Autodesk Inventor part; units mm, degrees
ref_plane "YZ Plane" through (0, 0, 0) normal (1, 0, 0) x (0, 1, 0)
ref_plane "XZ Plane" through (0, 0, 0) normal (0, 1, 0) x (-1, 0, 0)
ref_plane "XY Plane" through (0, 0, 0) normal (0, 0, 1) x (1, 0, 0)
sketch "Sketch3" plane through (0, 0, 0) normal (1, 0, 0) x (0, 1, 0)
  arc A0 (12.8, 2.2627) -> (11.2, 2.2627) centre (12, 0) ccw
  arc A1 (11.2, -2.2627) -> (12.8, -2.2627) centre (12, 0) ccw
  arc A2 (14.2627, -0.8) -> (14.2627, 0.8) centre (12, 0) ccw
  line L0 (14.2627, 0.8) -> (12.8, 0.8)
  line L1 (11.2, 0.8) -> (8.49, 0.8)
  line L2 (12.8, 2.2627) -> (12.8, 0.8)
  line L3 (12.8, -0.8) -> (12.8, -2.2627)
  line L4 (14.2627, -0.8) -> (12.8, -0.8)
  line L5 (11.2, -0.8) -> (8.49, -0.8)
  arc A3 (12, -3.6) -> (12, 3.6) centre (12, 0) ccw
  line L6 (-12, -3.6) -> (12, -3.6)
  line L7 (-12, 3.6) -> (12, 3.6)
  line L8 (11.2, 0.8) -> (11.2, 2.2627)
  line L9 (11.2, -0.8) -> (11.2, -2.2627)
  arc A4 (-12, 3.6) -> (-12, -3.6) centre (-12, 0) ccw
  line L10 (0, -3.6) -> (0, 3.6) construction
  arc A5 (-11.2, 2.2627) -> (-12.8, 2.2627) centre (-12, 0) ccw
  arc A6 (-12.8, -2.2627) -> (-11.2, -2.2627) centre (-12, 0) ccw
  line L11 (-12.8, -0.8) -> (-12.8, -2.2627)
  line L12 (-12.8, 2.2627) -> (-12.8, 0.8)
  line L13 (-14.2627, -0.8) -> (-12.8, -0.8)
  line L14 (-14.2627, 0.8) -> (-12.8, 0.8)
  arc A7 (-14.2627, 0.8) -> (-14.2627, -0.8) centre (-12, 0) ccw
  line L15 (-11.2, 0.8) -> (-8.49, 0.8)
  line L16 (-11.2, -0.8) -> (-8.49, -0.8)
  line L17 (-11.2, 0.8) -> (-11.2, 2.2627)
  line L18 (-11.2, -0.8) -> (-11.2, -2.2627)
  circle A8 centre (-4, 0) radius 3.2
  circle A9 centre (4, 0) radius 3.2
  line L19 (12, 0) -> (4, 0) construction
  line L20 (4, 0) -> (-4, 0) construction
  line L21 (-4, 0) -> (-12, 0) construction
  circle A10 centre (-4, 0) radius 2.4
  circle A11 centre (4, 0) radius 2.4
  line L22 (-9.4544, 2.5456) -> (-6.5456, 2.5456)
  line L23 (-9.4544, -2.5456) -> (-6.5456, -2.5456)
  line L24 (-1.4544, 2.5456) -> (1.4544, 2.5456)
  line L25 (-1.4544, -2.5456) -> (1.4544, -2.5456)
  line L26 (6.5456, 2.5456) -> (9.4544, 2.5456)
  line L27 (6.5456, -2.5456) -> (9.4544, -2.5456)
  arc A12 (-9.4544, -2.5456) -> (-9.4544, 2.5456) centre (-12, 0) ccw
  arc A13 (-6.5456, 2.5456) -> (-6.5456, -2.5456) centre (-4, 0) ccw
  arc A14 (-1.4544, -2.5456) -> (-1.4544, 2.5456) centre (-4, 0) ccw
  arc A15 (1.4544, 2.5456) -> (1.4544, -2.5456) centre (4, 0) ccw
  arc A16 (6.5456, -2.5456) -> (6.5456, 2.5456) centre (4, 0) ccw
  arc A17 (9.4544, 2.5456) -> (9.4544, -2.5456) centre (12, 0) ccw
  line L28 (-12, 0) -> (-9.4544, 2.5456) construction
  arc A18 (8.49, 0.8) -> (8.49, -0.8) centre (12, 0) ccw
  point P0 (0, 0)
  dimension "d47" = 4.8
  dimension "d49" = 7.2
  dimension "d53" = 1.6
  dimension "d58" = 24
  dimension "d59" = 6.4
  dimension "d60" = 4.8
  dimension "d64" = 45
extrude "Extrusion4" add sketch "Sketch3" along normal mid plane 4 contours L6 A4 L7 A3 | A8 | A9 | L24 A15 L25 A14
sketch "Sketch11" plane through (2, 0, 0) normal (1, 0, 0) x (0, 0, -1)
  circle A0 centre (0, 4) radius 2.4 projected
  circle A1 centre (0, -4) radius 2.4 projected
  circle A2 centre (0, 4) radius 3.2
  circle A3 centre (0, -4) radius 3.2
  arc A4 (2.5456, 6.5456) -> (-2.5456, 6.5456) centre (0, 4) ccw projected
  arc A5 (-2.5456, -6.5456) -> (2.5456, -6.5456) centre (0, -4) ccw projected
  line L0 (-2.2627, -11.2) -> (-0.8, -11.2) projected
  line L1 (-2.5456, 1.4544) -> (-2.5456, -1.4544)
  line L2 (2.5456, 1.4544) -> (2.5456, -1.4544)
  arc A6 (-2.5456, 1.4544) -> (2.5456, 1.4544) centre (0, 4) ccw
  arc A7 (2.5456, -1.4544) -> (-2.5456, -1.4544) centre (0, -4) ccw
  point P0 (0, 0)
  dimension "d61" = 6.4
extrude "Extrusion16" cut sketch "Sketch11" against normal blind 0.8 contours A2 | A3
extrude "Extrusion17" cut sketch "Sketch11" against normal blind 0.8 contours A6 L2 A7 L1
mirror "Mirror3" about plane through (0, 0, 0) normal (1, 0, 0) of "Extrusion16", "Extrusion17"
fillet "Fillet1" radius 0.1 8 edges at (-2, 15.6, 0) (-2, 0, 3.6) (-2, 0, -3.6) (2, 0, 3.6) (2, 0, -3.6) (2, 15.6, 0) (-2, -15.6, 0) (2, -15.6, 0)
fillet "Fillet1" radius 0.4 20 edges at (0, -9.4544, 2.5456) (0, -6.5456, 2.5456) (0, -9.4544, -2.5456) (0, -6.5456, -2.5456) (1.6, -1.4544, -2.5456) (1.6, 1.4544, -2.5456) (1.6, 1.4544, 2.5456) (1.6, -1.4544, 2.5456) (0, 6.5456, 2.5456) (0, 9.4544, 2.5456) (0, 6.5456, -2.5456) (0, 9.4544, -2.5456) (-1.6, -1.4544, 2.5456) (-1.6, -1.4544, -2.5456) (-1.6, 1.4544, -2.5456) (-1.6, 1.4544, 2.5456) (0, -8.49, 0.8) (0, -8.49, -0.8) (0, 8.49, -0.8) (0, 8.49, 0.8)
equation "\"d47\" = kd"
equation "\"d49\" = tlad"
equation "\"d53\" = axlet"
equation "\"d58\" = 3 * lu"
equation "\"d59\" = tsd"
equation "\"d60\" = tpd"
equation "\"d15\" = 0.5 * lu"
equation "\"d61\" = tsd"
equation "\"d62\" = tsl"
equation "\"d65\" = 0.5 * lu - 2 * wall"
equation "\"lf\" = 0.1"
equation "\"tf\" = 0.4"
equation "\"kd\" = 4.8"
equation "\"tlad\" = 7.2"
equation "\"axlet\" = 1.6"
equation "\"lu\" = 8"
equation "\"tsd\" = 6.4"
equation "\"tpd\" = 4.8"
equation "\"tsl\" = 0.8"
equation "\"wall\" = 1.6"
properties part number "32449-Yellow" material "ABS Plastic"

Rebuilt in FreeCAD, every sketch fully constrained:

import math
import FreeCAD as App
import Part
import Sketcher


def edges_at(feature, points):
    """Names of the edges that pass closest to the given points."""
    edges = feature.Shape.Edges
    near = lambda p: min(range(len(edges)), key=lambda i: edges[i].distToShape(Part.Vertex(*p))[0])
    return sorted({f"Edge{near(p) + 1}" for p in points})

doc = App.newDocument("Part")
params = doc.addObject("Spreadsheet::Sheet", "Params")
for row, (alias, value) in enumerate([
    ("sketch1_diameter", "4.8 mm"),
    ("sketch1_radius", "3.6 mm"),
    ("sketch1_width", "24 mm"),
    ("pad1_length", "4 mm"),
    ("sketch2_diameter", "6.4 mm"),
    ("sketch2_diameter2", "4.8 mm"),
    ("pocket1_length", "0.8 mm"),
    ("sketch3_radius", "3.6 mm"),
    ("pocket2_length", "0.8 mm"),
    ("fillet_radius", "0.1 mm"),
    ("fillet2_radius", "0.4 mm"),
], start=1):
    params.set(f"A{row}", alias)
    params.set(f"B{row}", "=" + value)
    params.setAlias(f"B{row}", alias)

body = doc.addObject("PartDesign::Body", "Body")

sketch1 = body.newObject("Sketcher::SketchObject", "Sketch")
sketch1.AttachmentSupport = (doc.getObject("YZ_Plane"), [""])
sketch1.MapMode = "FlatFace"
sketch1.addGeometry([
    Part.LineSegment(App.Vector(-12, -3.6, 0), App.Vector(12, -3.6, 0)),
    Part.ArcOfCircle(Part.Circle(App.Vector(12, 0, 0), App.Vector(0, 0, 1), 3.6), math.radians(-90), math.radians(90)),
    Part.LineSegment(App.Vector(12, 3.6, 0), App.Vector(-12, 3.6, 0)),
    Part.ArcOfCircle(Part.Circle(App.Vector(-12, 0, 0), App.Vector(0, 0, 1), 3.6), math.radians(90), math.radians(270)),
    Part.ArcOfCircle(Part.Circle(App.Vector(-12, 0, 0), App.Vector(0, 0, 1), 2.399961), math.radians(70.528448), math.radians(109.471552)),
    Part.LineSegment(App.Vector(-11.2, 2.2627, 0), App.Vector(-11.2, 0.8, 0)),
    Part.LineSegment(App.Vector(-11.2, 0.8, 0), App.Vector(-8.49, 0.8, 0)),
    Part.ArcOfCircle(Part.Circle(App.Vector(-12, 0, 0), App.Vector(0, 0, 1), 3.600022), math.radians(12.839538), math.radians(45)),
    Part.LineSegment(App.Vector(-9.4544, 2.5456, 0), App.Vector(-6.5456, 2.5456, 0)),
    Part.ArcOfCircle(Part.Circle(App.Vector(-4, 0, 0), App.Vector(0, 0, 1), 3.600022), math.radians(135), math.radians(225)),
    Part.LineSegment(App.Vector(-6.5456, -2.5456, 0), App.Vector(-9.4544, -2.5456, 0)),
    Part.ArcOfCircle(Part.Circle(App.Vector(-12, 0, 0), App.Vector(0, 0, 1), 3.600022), math.radians(-45), math.radians(-12.839538)),
    Part.LineSegment(App.Vector(-8.49, -0.8, 0), App.Vector(-11.2, -0.8, 0)),
    Part.LineSegment(App.Vector(-11.2, -0.8, 0), App.Vector(-11.2, -2.2627, 0)),
    Part.ArcOfCircle(Part.Circle(App.Vector(-12, 0, 0), App.Vector(0, 0, 1), 2.399961), math.radians(-109.471552), math.radians(-70.528448)),
    Part.LineSegment(App.Vector(-12.8, -2.2627, 0), App.Vector(-12.8, -0.8, 0)),
    Part.LineSegment(App.Vector(-12.8, -0.8, 0), App.Vector(-14.2627, -0.8, 0)),
    Part.ArcOfCircle(Part.Circle(App.Vector(-12, 0, 0), App.Vector(0, 0, 1), 2.399961), math.radians(160.528448), math.radians(199.471552)),
    Part.LineSegment(App.Vector(-14.2627, 0.8, 0), App.Vector(-12.8, 0.8, 0)),
    Part.LineSegment(App.Vector(-12.8, 0.8, 0), App.Vector(-12.8, 2.2627, 0)),
    Part.ArcOfCircle(Part.Circle(App.Vector(12, 0, 0), App.Vector(0, 0, 1), 2.399961), math.radians(70.528448), math.radians(109.471552)),
    Part.LineSegment(App.Vector(12.8, 2.2627, 0), App.Vector(12.8, 0.8, 0)),
    Part.LineSegment(App.Vector(12.8, 0.8, 0), App.Vector(14.2627, 0.8, 0)),
    Part.ArcOfCircle(Part.Circle(App.Vector(12, 0, 0), App.Vector(0, 0, 1), 2.399961), math.radians(-19.471552), math.radians(19.471552)),
    Part.LineSegment(App.Vector(14.2627, -0.8, 0), App.Vector(12.8, -0.8, 0)),
    Part.LineSegment(App.Vector(12.8, -0.8, 0), App.Vector(12.8, -2.2627, 0)),
    Part.ArcOfCircle(Part.Circle(App.Vector(12, 0, 0), App.Vector(0, 0, 1), 2.399961), math.radians(-109.471552), math.radians(-70.528448)),
    Part.LineSegment(App.Vector(11.2, -2.2627, 0), App.Vector(11.2, -0.8, 0)),
    Part.LineSegment(App.Vector(11.2, -0.8, 0), App.Vector(8.49, -0.8, 0)),
    Part.ArcOfCircle(Part.Circle(App.Vector(12, 0, 0), App.Vector(0, 0, 1), 3.600022), math.radians(-167.160462), math.radians(-135)),
    Part.LineSegment(App.Vector(9.4544, -2.5456, 0), App.Vector(6.5456, -2.5456, 0)),
    Part.ArcOfCircle(Part.Circle(App.Vector(4, 0, 0), App.Vector(0, 0, 1), 3.600022), math.radians(-45), math.radians(45)),
    Part.LineSegment(App.Vector(6.5456, 2.5456, 0), App.Vector(9.4544, 2.5456, 0)),
    Part.ArcOfCircle(Part.Circle(App.Vector(12, 0, 0), App.Vector(0, 0, 1), 3.600022), math.radians(135), math.radians(167.160462)),
    Part.LineSegment(App.Vector(8.49, 0.8, 0), App.Vector(11.2, 0.8, 0)),
    Part.LineSegment(App.Vector(11.2, 0.8, 0), App.Vector(11.2, 2.2627, 0)),
    Part.Circle(App.Vector(-4, 0, 0), App.Vector(0, 0, 1), 2.4),
    Part.Circle(App.Vector(4, 0, 0), App.Vector(0, 0, 1), 2.4),
], False)
sketch1.addConstraint([
    Sketcher.Constraint("Tangent", 0, 2, 1, 1),
    Sketcher.Constraint("Tangent", 1, 2, 2, 1),
    Sketcher.Constraint("Tangent", 2, 2, 3, 1),
    Sketcher.Constraint("Tangent", 3, 2, 0, 1),
    Sketcher.Constraint("Coincident", 4, 1, 5, 1),
    Sketcher.Constraint("Coincident", 5, 2, 6, 1),
    Sketcher.Constraint("Coincident", 6, 2, 7, 1),
    Sketcher.Constraint("Coincident", 7, 2, 8, 1),
    Sketcher.Constraint("Coincident", 8, 2, 9, 1),
    Sketcher.Constraint("Coincident", 9, 2, 10, 1),
    Sketcher.Constraint("Coincident", 10, 2, 11, 1),
    Sketcher.Constraint("Coincident", 11, 2, 12, 1),
    Sketcher.Constraint("Coincident", 12, 2, 13, 1),
    Sketcher.Constraint("Coincident", 13, 2, 14, 2),
    Sketcher.Constraint("Coincident", 14, 1, 15, 1),
    Sketcher.Constraint("Coincident", 15, 2, 16, 1),
    Sketcher.Constraint("Coincident", 16, 2, 17, 2),
    Sketcher.Constraint("Coincident", 17, 1, 18, 1),
    Sketcher.Constraint("Coincident", 18, 2, 19, 1),
    Sketcher.Constraint("Coincident", 19, 2, 4, 2),
    Sketcher.Constraint("Coincident", 20, 1, 21, 1),
    Sketcher.Constraint("Coincident", 21, 2, 22, 1),
    Sketcher.Constraint("Coincident", 22, 2, 23, 2),
    Sketcher.Constraint("Coincident", 23, 1, 24, 1),
    Sketcher.Constraint("Coincident", 24, 2, 25, 1),
    Sketcher.Constraint("Coincident", 25, 2, 26, 2),
    Sketcher.Constraint("Coincident", 26, 1, 27, 1),
    Sketcher.Constraint("Coincident", 27, 2, 28, 1),
    Sketcher.Constraint("Coincident", 28, 2, 29, 1),
    Sketcher.Constraint("Coincident", 29, 2, 30, 1),
    Sketcher.Constraint("Coincident", 30, 2, 31, 1),
    Sketcher.Constraint("Coincident", 31, 2, 32, 1),
    Sketcher.Constraint("Coincident", 32, 2, 33, 1),
    Sketcher.Constraint("Coincident", 33, 2, 34, 1),
    Sketcher.Constraint("Coincident", 34, 2, 35, 1),
    Sketcher.Constraint("Coincident", 35, 2, 20, 2),
    Sketcher.Constraint("Horizontal", 0),
    Sketcher.Constraint("Horizontal", 2),
    Sketcher.Constraint("Vertical", 5),
    Sketcher.Constraint("Horizontal", 6),
    Sketcher.Constraint("Horizontal", 8),
    Sketcher.Constraint("Horizontal", 10),
    Sketcher.Constraint("Horizontal", 12),
    Sketcher.Constraint("Vertical", 13),
    Sketcher.Constraint("Vertical", 15),
    Sketcher.Constraint("Horizontal", 16),
    Sketcher.Constraint("Horizontal", 18),
    Sketcher.Constraint("Vertical", 19),
    Sketcher.Constraint("Vertical", 21),
    Sketcher.Constraint("Horizontal", 22),
    Sketcher.Constraint("Horizontal", 24),
    Sketcher.Constraint("Vertical", 25),
    Sketcher.Constraint("Vertical", 27),
    Sketcher.Constraint("Horizontal", 28),
    Sketcher.Constraint("Horizontal", 30),
    Sketcher.Constraint("Horizontal", 32),
    Sketcher.Constraint("Horizontal", 34),
    Sketcher.Constraint("Vertical", 35),
    Sketcher.Constraint("Coincident", 4, 3, 3, 3),
    Sketcher.Constraint("Coincident", 7, 3, 3, 3),
    Sketcher.Constraint("Coincident", 11, 3, 3, 3),
    Sketcher.Constraint("Coincident", 14, 3, 3, 3),
    Sketcher.Constraint("Coincident", 17, 3, 3, 3),
    Sketcher.Constraint("Coincident", 20, 3, 1, 3),
    Sketcher.Constraint("Coincident", 23, 3, 1, 3),
    Sketcher.Constraint("Coincident", 26, 3, 1, 3),
    Sketcher.Constraint("Coincident", 29, 3, 1, 3),
    Sketcher.Constraint("Coincident", 33, 3, 1, 3),
    Sketcher.Constraint("Coincident", 36, 3, 9, 3),
    Sketcher.Constraint("Coincident", 37, 3, 31, 3),
    Sketcher.Constraint("Equal", 3, 7),
    Sketcher.Constraint("Equal", 7, 9),
    Sketcher.Constraint("Equal", 9, 11),
    Sketcher.Constraint("Equal", 4, 14),
    Sketcher.Constraint("Equal", 14, 17),
    Sketcher.Constraint("Equal", 17, 20),
    Sketcher.Constraint("Equal", 20, 23),
    Sketcher.Constraint("Equal", 23, 26),
    Sketcher.Constraint("Equal", 11, 29),
    Sketcher.Constraint("Equal", 29, 31),
    Sketcher.Constraint("Equal", 31, 33),
    Sketcher.Constraint("Equal", 26, 36),
    Sketcher.Constraint("Equal", 36, 37),
    Sketcher.Constraint("Symmetric", 1, 3, 3, 3, -1, 1),
    Sketcher.Constraint("Symmetric", 9, 3, 31, 3, -1, 1),
    Sketcher.Constraint("Symmetric", 15, 2, 21, 2, -1, 1),
    Sketcher.Constraint("Symmetric", 18, 2, 24, 2, -1, 1),
    Sketcher.Constraint("Symmetric", 5, 2, 27, 2, -1, 1),
    Sketcher.Constraint("Symmetric", 12, 2, 34, 2, -1, 1),
    Sketcher.Constraint("Symmetric", 18, 2, 21, 2, -2),
    Sketcher.Constraint("Symmetric", 12, 2, 27, 2, -2),
    Sketcher.Constraint("Symmetric", 9, 2, 30, 2, -2),
    Sketcher.Constraint("Horizontal", 13, 2, 14, 1),
    Sketcher.Constraint("Horizontal", 12, 2, 15, 2),
    Sketcher.Constraint("Horizontal", 8, 2, 31, 2),
    Sketcher.Constraint("Vertical", 8, 2, 9, 2),
    Sketcher.Constraint("Equal", 24, 5),
    Sketcher.Constraint("Diameter", 36, 4.8),
    Sketcher.Constraint("Radius", 1, 3.6),
    Sketcher.Constraint("DistanceX", 0, 1, 0, 2, 24.0),
    Sketcher.Constraint("DistanceY", 11, 2, 6, 2, 1.6),
    Sketcher.Constraint("DistanceX", 9, 3, -1, 1, 4.0),
    Sketcher.Constraint("DistanceX", 8, 1, 8, 2, 2.9088),
])
sketch1.setExpression("Constraints[97]", "Params.sketch1_diameter")
sketch1.setExpression("Constraints[98]", "Params.sketch1_radius")
sketch1.setExpression("Constraints[99]", "Params.sketch1_width")
pad1 = body.newObject("PartDesign::Pad", "Pad")
pad1.Profile = sketch1
pad1.setExpression("Length", "Params.pad1_length")
pad1.Midplane = True

sketch2 = body.newObject("Sketcher::SketchObject", "Sketch001")
sketch2.AttachmentSupport = (doc.getObject("YZ_Plane"), [""])
sketch2.MapMode = "FlatFace"
sketch2.AttachmentOffset = App.Placement(App.Vector(0, 0, 2), App.Rotation())
sketch2.addGeometry([
    Part.Circle(App.Vector(4, 0, 0), App.Vector(0, 0, 1), 3.2),
    Part.Circle(App.Vector(4, 0, 0), App.Vector(0, 0, 1), 2.4),
    Part.Circle(App.Vector(-4, 0, 0), App.Vector(0, 0, 1), 3.2),
    Part.Circle(App.Vector(-4, 0, 0), App.Vector(0, 0, 1), 2.4),
], False)
sketch2.addConstraint([
    Sketcher.Constraint("Coincident", 1, 3, 0, 3),
    Sketcher.Constraint("Coincident", 3, 3, 2, 3),
    Sketcher.Constraint("Equal", 0, 2),
    Sketcher.Constraint("Equal", 1, 3),
    Sketcher.Constraint("Symmetric", 0, 3, 2, 3, -1, 1),
    Sketcher.Constraint("PointOnObject", 0, 3, -1),
    Sketcher.Constraint("Diameter", 0, 6.4),
    Sketcher.Constraint("Diameter", 1, 4.8),
    Sketcher.Constraint("DistanceX", -1, 1, 0, 3, 4.0),
])
sketch2.setExpression("Constraints[6]", "Params.sketch2_diameter")
sketch2.setExpression("Constraints[7]", "Params.sketch2_diameter2")
pocket1 = body.newObject("PartDesign::Pocket", "Pocket")
pocket1.Profile = sketch2
pocket1.setExpression("Length", "Params.pocket1_length")

sketch3 = body.newObject("Sketcher::SketchObject", "Sketch002")
sketch3.AttachmentSupport = (doc.getObject("YZ_Plane"), [""])
sketch3.MapMode = "FlatFace"
sketch3.AttachmentOffset = App.Placement(App.Vector(0, 0, 2), App.Rotation())
sketch3.addGeometry([
    Part.ArcOfCircle(Part.Circle(App.Vector(4, 0, 0), App.Vector(0, 0, 1), 3.600022), math.radians(135), math.radians(225)),
    Part.LineSegment(App.Vector(1.4544, 2.5456, 0), App.Vector(-1.4544, 2.5456, 0)),
    Part.ArcOfCircle(Part.Circle(App.Vector(-4, 0, 0), App.Vector(0, 0, 1), 3.600022), math.radians(-45), math.radians(45)),
    Part.LineSegment(App.Vector(-1.4544, -2.5456, 0), App.Vector(1.4544, -2.5456, 0)),
], False)
sketch3.addConstraint([
    Sketcher.Constraint("Coincident", 0, 1, 1, 1),
    Sketcher.Constraint("Coincident", 1, 2, 2, 2),
    Sketcher.Constraint("Coincident", 2, 1, 3, 1),
    Sketcher.Constraint("Coincident", 3, 2, 0, 2),
    Sketcher.Constraint("Horizontal", 1),
    Sketcher.Constraint("Horizontal", 3),
    Sketcher.Constraint("Equal", 0, 2),
    Sketcher.Constraint("Symmetric", 0, 3, 2, 3, -1, 1),
    Sketcher.Constraint("Symmetric", 1, 2, 2, 1, -1),
    Sketcher.Constraint("Radius", 0, 3.6),
    Sketcher.Constraint("DistanceX", -1, 1, 0, 3, 4.0),
    Sketcher.Constraint("DistanceX", 1, 2, 1, 1, 2.9088),
])
sketch3.setExpression("Constraints[9]", "Params.sketch3_radius")
pocket2 = body.newObject("PartDesign::Pocket", "Pocket001")
pocket2.Profile = sketch3
pocket2.setExpression("Length", "Params.pocket2_length")
doc.recompute()

mirrored = body.newObject("PartDesign::Mirrored", "Mirrored")
mirrored.Originals = [pocket1, pocket2]
mirrored.MirrorPlane = (doc.getObject("YZ_Plane"), [""])
body.Tip = mirrored
doc.recompute()

fillet = body.newObject("PartDesign::Fillet", "Fillet")
fillet.Base = (mirrored, edges_at(mirrored, [
    (-2, 15.6, 0),
    (-2, 0, 3.6),
    (-2, 0, -3.6),
    (2, 0, 3.6),
    (2, 0, -3.6),
    (2, 15.6, 0),
    (-2, -15.6, 0),
    (2, -15.6, 0),
]))
fillet.setExpression("Radius", "Params.fillet_radius")
doc.recompute()

fillet2 = body.newObject("PartDesign::Fillet", "Fillet001")
fillet2.Base = (fillet, edges_at(fillet, [
    (0, -9.454, 2.546),
    (0, -6.546, 2.546),
    (0, -9.454, -2.546),
    (0, -6.546, -2.546),
    (1.6, -1.454, -2.546),
    (1.6, 1.454, -2.546),
    (1.6, 1.454, 2.546),
    (1.6, -1.454, 2.546),
    (0, 6.546, 2.546),
    (0, 9.454, 2.546),
    (0, 6.546, -2.546),
    (0, 9.454, -2.546),
    (-1.6, -1.454, 2.546),
    (-1.6, -1.454, -2.546),
    (-1.6, 1.454, -2.546),
    (-1.6, 1.454, 2.546),
    (0, -8.49, 0.8),
    (0, -8.49, -0.8),
    (0, 8.49, -0.8),
    (0, 8.49, 0.8),
]))
fillet2.setExpression("Radius", "Params.fillet2_radius")

doc.recompute()
